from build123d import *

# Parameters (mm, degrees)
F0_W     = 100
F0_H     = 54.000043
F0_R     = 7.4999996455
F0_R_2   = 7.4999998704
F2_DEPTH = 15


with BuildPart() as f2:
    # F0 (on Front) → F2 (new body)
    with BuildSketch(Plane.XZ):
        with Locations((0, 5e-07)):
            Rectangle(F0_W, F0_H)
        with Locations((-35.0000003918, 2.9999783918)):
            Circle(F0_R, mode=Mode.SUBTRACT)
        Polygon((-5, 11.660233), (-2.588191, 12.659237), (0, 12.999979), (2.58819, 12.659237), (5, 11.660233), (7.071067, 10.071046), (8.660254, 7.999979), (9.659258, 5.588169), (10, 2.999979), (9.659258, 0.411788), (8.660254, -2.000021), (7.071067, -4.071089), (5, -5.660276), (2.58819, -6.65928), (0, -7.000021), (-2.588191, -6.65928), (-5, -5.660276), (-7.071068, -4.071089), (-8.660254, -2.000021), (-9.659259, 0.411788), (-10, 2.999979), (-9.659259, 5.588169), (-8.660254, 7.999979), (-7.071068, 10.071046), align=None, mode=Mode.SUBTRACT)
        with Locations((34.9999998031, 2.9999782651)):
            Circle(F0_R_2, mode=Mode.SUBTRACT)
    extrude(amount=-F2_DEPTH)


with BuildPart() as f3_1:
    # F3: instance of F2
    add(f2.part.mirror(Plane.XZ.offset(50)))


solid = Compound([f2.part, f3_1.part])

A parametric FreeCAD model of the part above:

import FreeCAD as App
import Part
import Sketcher

V = App.Vector
Q = App.Units.Quantity


def add_polygon(sketch, points):
    """Adds a closed chain of lines whose ends are joined by coincident constraints."""
    first, n = sketch.GeometryCount, len(points)
    for a, b in zip(points, points[1:] + points[:1]):
        sketch.addGeometry(Part.LineSegment(App.Vector(*a, 0), App.Vector(*b, 0)), False)
    for i in range(n):
        sketch.addConstraint(Sketcher.Constraint("Coincident", first + i, 2, first + (i + 1) % n, 1))

doc = App.newDocument("Part")
body = doc.addObject("PartDesign::Body", "Body")

sketch1 = body.newObject("Sketcher::SketchObject", "Sketch")
sketch1.AttachmentSupport = (doc.getObject("XZ_Plane"), [""])
sketch1.MapMode = "FlatFace"
add_polygon(sketch1, [(-50, 27), (-50, -27), (50, -27), (50, 27)])
sketch1.addGeometry(Part.Circle(V(-35, 3, 0), V(0, 0, 1), 7.5), False)
sketch1.addGeometry(Part.Circle(V(35, 3, 0), V(0, 0, 1), 7.5), False)
add_polygon(sketch1, [(-7.1, 10.1), (-5, 11.7), (-2.6, 12.7), (0, 13), (2.6, 12.7), (5, 11.7), (7.1, 10.1), (8.7, 8), (9.7, 5.6), (10, 3), (9.7, 0.4), (8.7, -2), (7.1, -4.1), (5, -5.7), (2.6, -6.7), (0, -7), (-2.6, -6.7), (-5, -5.7), (-7.1, -4.1), (-8.7, -2), (-9.7, 0.4), (-10, 3), (-9.7, 5.6), (-8.7, 8)])
sketch1.addConstraint(Sketcher.Constraint("Vertical", 0))
sketch1.addConstraint(Sketcher.Constraint("Horizontal", 1))
sketch1.addConstraint(Sketcher.Constraint("Vertical", 2))
sketch1.addConstraint(Sketcher.Constraint("Horizontal", 3))
sketch1.addConstraint(Sketcher.Constraint("Equal", 4, 5))
sketch1.addConstraint(Sketcher.Constraint("Symmetric", 0, 2, 2, 2, -1, 1))
sketch1.addConstraint(Sketcher.Constraint("Symmetric", 4, 3, 5, 3, -2))
sketch1.addConstraint(Sketcher.Constraint("Symmetric", 7, 2, 9, 2, -2))
sketch1.addConstraint(Sketcher.Constraint("Symmetric", 6, 2, 10, 2, -2))
sketch1.addConstraint(Sketcher.Constraint("Symmetric", 19, 2, 21, 2, -2))
sketch1.addConstraint(Sketcher.Constraint("Symmetric", 18, 2, 22, 2, -2))
sketch1.addConstraint(Sketcher.Constraint("Symmetric", 17, 2, 23, 2, -2))
sketch1.addConstraint(Sketcher.Constraint("Symmetric", 16, 2, 24, 2, -2))
sketch1.addConstraint(Sketcher.Constraint("Symmetric", 15, 2, 25, 2, -2))
sketch1.addConstraint(Sketcher.Constraint("Symmetric", 14, 2, 26, 2, -2))
sketch1.addConstraint(Sketcher.Constraint("Symmetric", 13, 2, 27, 2, -2))
sketch1.addConstraint(Sketcher.Constraint("Symmetric", 12, 2, 28, 2, -2))
sketch1.addConstraint(Sketcher.Constraint("Symmetric", 11, 2, 29, 2, -2))
sketch1.addConstraint(Sketcher.Constraint("PointOnObject", 8, 2, -2))
sketch1.addConstraint(Sketcher.Constraint("PointOnObject", 20, 2, -2))
sketch1.addConstraint(Sketcher.Constraint("Perpendicular", 6, 12))
sketch1.addConstraint(Sketcher.Constraint("Perpendicular", 7, 13))
sketch1.addConstraint(Sketcher.Constraint("Perpendicular", 8, 14))
sketch1.addConstraint(Sketcher.Constraint("Perpendicular", 9, 15))
sketch1.addConstraint(Sketcher.Constraint("Perpendicular", 10, 16))
sketch1.addConstraint(Sketcher.Constraint("Perpendicular", 11, 17))
sketch1.addConstraint(Sketcher.Constraint("Perpendicular", 12, 18))
sketch1.addConstraint(Sketcher.Constraint("Perpendicular", 13, 19))
sketch1.addConstraint(Sketcher.Constraint("Perpendicular", 14, 20))
sketch1.addConstraint(Sketcher.Constraint("Horizontal", 5, 3, 14, 2))
sketch1.addConstraint(Sketcher.Constraint("Vertical", 13, 2, 15, 2))
sketch1.addConstraint(Sketcher.Constraint("Vertical", 12, 2, 16, 2))
sketch1.addConstraint(Sketcher.Constraint("Vertical", 11, 2, 17, 2))
sketch1.addConstraint(Sketcher.Constraint("Vertical", 10, 2, 18, 2))
sketch1.addConstraint(Sketcher.Constraint("Vertical", 9, 2, 19, 2))
sketch1.addConstraint(Sketcher.Constraint("Equal", 6, 7))
sketch1.addConstraint(Sketcher.Constraint("Equal", 7, 8))
sketch1.addConstraint(Sketcher.Constraint("Equal", 11, 12))
sketch1.addConstraint(Sketcher.Constraint("Equal", 12, 13))
sketch1.addConstraint(Sketcher.Constraint("Equal", 13, 14))
sketch1.addConstraint(Sketcher.Constraint("Diameter", 4, 14.999999))
sketch1.addConstraint(Sketcher.Constraint("DistanceX", 1, 1, 1, 2, 100.0))
sketch1.addConstraint(Sketcher.Constraint("DistanceX", 4, 3, -1, 1, 35.0))
sketch1.addConstraint(Sketcher.Constraint("DistanceX", 6, 2, -1, 1, 5.0))
sketch1.addConstraint(Sketcher.Constraint("DistanceX", -1, 1, 14, 2, 10.0))
sketch1.addConstraint(Sketcher.Constraint("Angle", 6, Q("37.500011 deg")))
sketch1.addConstraint(Sketcher.Constraint("Angle", 7, Q("22.5 deg")))
sketch1.addConstraint(Sketcher.Constraint("DistanceY", 0, 2, 4, 3, 30.0))
sketch1.addConstraint(Sketcher.Constraint("DistanceY", 0, 2, 0, 1, 54.000043))
pad1 = body.newObject("PartDesign::Pad", "Pad")
pad1.Profile = sketch1
pad1.Length = 15
pad1.Reversed = True
body2 = doc.addObject("PartDesign::Body", "Body001")
doc.recompute()

mirroring = doc.addObject("Part::Mirroring", "Mirroring")
mirroring.Source = body
mirroring.Base = V(0, -50, 0)
mirroring.Normal = V(0, -1, 0)
body2.BaseFeature = mirroring
doc.recompute()
mirroring.Visibility = False

doc.recompute()
